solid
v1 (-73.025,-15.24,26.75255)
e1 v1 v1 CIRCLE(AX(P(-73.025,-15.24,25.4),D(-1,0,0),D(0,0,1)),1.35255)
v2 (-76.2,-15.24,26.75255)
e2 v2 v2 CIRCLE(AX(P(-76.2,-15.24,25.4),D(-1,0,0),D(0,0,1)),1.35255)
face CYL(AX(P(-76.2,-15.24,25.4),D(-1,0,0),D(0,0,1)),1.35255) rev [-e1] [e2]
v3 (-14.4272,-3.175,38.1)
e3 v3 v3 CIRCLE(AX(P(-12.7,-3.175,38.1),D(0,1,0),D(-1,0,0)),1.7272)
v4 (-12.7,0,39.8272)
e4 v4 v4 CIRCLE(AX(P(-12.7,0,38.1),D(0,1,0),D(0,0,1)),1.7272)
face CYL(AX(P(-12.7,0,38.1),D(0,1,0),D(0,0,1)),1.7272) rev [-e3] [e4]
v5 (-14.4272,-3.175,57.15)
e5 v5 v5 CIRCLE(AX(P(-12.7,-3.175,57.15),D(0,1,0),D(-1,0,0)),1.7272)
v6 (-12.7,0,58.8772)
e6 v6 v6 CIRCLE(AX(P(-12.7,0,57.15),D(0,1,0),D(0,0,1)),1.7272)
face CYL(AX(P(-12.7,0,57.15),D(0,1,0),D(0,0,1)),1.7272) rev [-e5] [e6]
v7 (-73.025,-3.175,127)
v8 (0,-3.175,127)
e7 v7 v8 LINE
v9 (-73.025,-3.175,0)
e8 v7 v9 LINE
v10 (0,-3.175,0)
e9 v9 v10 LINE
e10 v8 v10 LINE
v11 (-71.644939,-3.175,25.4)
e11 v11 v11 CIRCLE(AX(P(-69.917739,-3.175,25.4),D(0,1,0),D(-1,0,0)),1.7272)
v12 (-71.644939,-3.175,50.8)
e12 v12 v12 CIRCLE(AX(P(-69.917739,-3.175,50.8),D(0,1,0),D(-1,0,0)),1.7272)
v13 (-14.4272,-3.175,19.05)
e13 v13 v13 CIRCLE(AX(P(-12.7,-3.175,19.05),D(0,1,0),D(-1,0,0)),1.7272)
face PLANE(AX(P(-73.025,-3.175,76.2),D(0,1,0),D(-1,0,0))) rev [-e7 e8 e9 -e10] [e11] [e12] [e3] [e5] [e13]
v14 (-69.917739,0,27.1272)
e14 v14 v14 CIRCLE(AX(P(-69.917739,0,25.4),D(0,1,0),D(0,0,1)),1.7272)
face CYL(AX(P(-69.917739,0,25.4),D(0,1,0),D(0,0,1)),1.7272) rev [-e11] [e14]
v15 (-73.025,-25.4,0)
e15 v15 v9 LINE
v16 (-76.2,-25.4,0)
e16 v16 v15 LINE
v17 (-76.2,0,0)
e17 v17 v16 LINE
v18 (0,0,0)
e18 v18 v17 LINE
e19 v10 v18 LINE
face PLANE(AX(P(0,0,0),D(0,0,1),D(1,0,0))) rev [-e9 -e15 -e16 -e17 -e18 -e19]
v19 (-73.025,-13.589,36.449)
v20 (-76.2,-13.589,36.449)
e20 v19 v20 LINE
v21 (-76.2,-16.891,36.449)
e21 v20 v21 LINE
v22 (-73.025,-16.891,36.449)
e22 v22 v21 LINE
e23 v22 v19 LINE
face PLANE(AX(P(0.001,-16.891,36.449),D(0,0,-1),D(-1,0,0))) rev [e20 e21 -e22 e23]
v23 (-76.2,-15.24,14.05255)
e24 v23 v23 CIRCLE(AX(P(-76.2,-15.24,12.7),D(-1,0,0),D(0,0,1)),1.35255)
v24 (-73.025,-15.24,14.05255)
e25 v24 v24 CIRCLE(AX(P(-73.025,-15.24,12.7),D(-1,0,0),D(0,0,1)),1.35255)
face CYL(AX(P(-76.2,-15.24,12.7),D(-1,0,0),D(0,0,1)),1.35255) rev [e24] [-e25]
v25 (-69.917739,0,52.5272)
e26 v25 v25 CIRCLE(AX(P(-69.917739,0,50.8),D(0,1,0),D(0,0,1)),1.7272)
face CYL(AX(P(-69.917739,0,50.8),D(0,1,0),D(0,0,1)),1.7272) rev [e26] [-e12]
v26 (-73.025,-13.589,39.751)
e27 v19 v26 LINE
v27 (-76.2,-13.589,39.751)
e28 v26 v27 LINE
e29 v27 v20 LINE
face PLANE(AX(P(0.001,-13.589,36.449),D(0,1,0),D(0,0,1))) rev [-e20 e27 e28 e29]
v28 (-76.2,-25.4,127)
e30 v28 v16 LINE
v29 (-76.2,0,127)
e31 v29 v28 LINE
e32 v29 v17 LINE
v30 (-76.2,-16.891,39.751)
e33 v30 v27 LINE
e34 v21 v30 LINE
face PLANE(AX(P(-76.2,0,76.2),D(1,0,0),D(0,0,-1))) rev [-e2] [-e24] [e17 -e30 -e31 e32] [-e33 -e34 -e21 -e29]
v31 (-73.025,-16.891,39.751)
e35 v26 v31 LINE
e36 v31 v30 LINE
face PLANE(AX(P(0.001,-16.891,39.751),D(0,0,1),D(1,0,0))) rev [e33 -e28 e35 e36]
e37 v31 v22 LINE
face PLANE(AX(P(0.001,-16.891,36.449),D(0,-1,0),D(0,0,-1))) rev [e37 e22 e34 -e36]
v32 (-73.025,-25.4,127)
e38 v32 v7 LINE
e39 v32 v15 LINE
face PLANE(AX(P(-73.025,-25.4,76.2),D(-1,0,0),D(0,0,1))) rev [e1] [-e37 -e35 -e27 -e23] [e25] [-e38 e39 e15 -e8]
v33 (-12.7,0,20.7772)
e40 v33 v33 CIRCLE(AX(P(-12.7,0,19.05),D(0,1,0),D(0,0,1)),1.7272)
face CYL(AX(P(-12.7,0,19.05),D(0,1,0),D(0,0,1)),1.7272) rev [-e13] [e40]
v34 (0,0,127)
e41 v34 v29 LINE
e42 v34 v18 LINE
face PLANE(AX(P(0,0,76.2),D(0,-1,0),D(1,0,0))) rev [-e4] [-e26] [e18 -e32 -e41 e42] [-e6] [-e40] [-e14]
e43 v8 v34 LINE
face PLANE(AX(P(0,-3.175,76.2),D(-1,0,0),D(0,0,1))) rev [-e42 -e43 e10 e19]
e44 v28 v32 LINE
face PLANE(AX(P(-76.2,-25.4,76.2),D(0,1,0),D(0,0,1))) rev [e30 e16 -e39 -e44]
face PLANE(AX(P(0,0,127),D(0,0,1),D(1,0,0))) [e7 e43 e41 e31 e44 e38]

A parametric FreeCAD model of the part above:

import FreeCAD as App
import Part
import Sketcher
Q = App.Units.Quantity


def add_polygon(sketch, points):
    """Adds a closed chain of lines whose ends are joined by coincident constraints."""
    first, n = sketch.GeometryCount, len(points)
    for a, b in zip(points, points[1:] + points[:1]):
        sketch.addGeometry(Part.LineSegment(App.Vector(*a, 0), App.Vector(*b, 0)), False)
    for i in range(n):
        sketch.addConstraint(Sketcher.Constraint("Coincident", first + i, 2, first + (i + 1) % n, 1))

doc = App.newDocument("Part")
body = doc.addObject("PartDesign::Body", "Body")

sketch1 = doc.addObject("Sketcher::SketchObject", "Sketch")
body.addObject(sketch1)
sketch1.AttachmentSupport = (doc.XY_Plane, [""])
sketch1.MapMode = "FlatFace"
add_polygon(sketch1, [(0, 0), (-76.2, 0), (-76.2, -25.4), (-73, -25.4), (-73, -3.2), (0, -3.2)])
sketch1.addConstraint([
    Sketcher.Constraint("Horizontal", 0),
    Sketcher.Constraint("Vertical", 1),
    Sketcher.Constraint("Horizontal", 2),
    Sketcher.Constraint("Vertical", 3),
    Sketcher.Constraint("Horizontal", 4),
    Sketcher.Constraint("Vertical", 5),
    Sketcher.Constraint("Coincident", 5, 2, -1, 1),
    Sketcher.Constraint("Equal", 2, 5),
    Sketcher.Constraint("DistanceX", 0, 2, 0, 1, Q("3 in")),
    Sketcher.Constraint("DistanceY", 1, 2, 1, 1, Q("1 in")),
    Sketcher.Constraint("DistanceX", 2, 1, 2, 2, Q("0.125 in")),
])
pad1 = doc.addObject("PartDesign::Pad", "Pad")
body.addObject(pad1)
pad1.Profile = sketch1
pad1.Length = Q("3 in")

sketch2 = doc.addObject("Sketcher::SketchObject", "Sketch001")
body.addObject(sketch2)
sketch2.AttachmentSupport = (doc.YZ_Plane, [""])
sketch2.MapMode = "FlatFace"
sketch2.AttachmentOffset = App.Placement(App.Vector(0, 0, -3 * 25.4), App.Rotation())
sketch2.addGeometry([
    Part.Circle(App.Vector(-15.2, 25.4, 0), App.Vector(0, 0, 1), 1.4),
    Part.Circle(App.Vector(-15.2, 12.7, 0), App.Vector(0, 0, 1), 1.4),
], False)
sketch2.addConstraint([
    Sketcher.Constraint("Equal", 0, 1),
    Sketcher.Constraint("Vertical", 0, 3, 1, 3),
    Sketcher.Constraint("DistanceY", -1, 1, 0, 3, Q("1 in")),
    Sketcher.Constraint("Diameter", 0, Q("0.1065 in")),
    Sketcher.Constraint("DistanceX", 0, 3, -1, 1, Q("0.6 in")),
    Sketcher.Constraint("DistanceY", -1, 1, 1, 3, Q("0.5 in")),
])
doc.recompute()
hole = doc.addObject("PartDesign::Hole", "Hole")
body.addObject(hole)
hole.Profile = sketch2
hole.ThreadType = "None"
hole.Diameter = Q("0.1065 in")
hole.DepthType = "ThroughAll"
hole.Reversed = True

sketch3 = doc.addObject("Sketcher::SketchObject", "Sketch002")
body.addObject(sketch3)
sketch3.AttachmentSupport = (doc.XZ_Plane, [""])
sketch3.MapMode = "FlatFace"
sketch3.addGeometry([
    Part.Circle(App.Vector(-69.9, 25.4, 0), App.Vector(0, 0, 1), 1.7),
    Part.Circle(App.Vector(-69.9, 50.8, 0), App.Vector(0, 0, 1), 1.7),
], False)
sketch3.addConstraint([
    Sketcher.Constraint("Equal", 0, 1),
    Sketcher.Constraint("Vertical", 0, 3, 1, 3),
    Sketcher.Constraint("Diameter", 0, Q("0.136 in")),
    Sketcher.Constraint("DistanceY", -1, 1, 0, 3, Q("1 in")),
    Sketcher.Constraint("DistanceY", -1, 1, 1, 3, Q("2 in")),
    Sketcher.Constraint("DistanceX", 0, 3, -1, 1, 69.917739),
])
doc.recompute()
hole2 = doc.addObject("PartDesign::Hole", "Hole001")
body.addObject(hole2)
hole2.Profile = sketch3
hole2.ThreadType = "None"
hole2.Diameter = Q("0.136 in")
hole2.DepthType = "ThroughAll"
hole2.Reversed = True

sketch4 = doc.addObject("Sketcher::SketchObject", "Sketch003")
body.addObject(sketch4)
sketch4.AttachmentSupport = (doc.YZ_Plane, [""])
sketch4.MapMode = "FlatFace"
sketch4.AttachmentOffset = App.Placement(App.Vector(0, 0, -3 * 25.4), App.Rotation())
add_polygon(sketch4, [(-13.6, 36.4), (-16.9, 36.4), (-16.9, 39.8), (-13.6, 39.8)])
sketch4.addConstraint([
    Sketcher.Constraint("Horizontal", 0),
    Sketcher.Constraint("Vertical", 1),
    Sketcher.Constraint("Horizontal", 2),
    Sketcher.Constraint("Vertical", 3),
    Sketcher.Constraint("Equal", 2, 1),
    Sketcher.Constraint("DistanceX", 0, 2, 0, 1, Q("0.13 in")),
    Sketcher.Constraint("DistanceX", 0, 2, -1, 1, Q("0.665 in")),
    Sketcher.Constraint("DistanceY", -1, 1, 0, 2, Q("1.435 in")),
])
pocket1 = doc.addObject("PartDesign::Pocket", "Pocket")
body.addObject(pocket1)
pocket1.Profile = sketch4
pocket1.Type = "UpToFirst"
pocket1.Reversed = True

sketch5 = doc.addObject("Sketcher::SketchObject", "Sketch004")
body.addObject(sketch5)
sketch5.AttachmentSupport = (doc.XZ_Plane, [""])
sketch5.MapMode = "FlatFace"
sketch5.addGeometry([
    Part.Circle(App.Vector(-12.7, 19.1, 0), App.Vector(0, 0, 1), 1.7),
    Part.Circle(App.Vector(-12.7, 38.1, 0), App.Vector(0, 0, 1), 1.7),
    Part.Circle(App.Vector(-12.7, 57.1, 0), App.Vector(0, 0, 1), 1.7),
], False)
sketch5.addConstraint([
    Sketcher.Constraint("Equal", 0, 1),
    Sketcher.Constraint("Equal", 1, 2),
    Sketcher.Constraint("Vertical", 0, 3, 1, 3),
    Sketcher.Constraint("Vertical", 1, 3, 2, 3),
    Sketcher.Constraint("Diameter", 0, Q("0.136 in")),
    Sketcher.Constraint("DistanceX", 0, 3, -1, 1, Q("0.5 in")),
    Sketcher.Constraint("DistanceY", -1, 1, 1, 3, Q("1.5 in")),
    Sketcher.Constraint("DistanceY", 0, 3, 2, 3, Q("1.5 in")),
    Sketcher.Constraint("DistanceY", -1, 1, 0, 3, Q("0.75 in")),
])
doc.recompute()
hole3 = doc.addObject("PartDesign::Hole", "Hole002")
body.addObject(hole3)
hole3.Profile = sketch5
hole3.ThreadType = "None"
hole3.Diameter = Q("0.136 in")
hole3.DepthType = "ThroughAll"
hole3.Reversed = True

sketch6 = doc.addObject("Sketcher::SketchObject", "Sketch005")
body.addObject(sketch6)
sketch6.AttachmentSupport = (doc.XY_Plane, [""])
sketch6.MapMode = "FlatFace"
sketch6.AttachmentOffset = App.Placement(App.Vector(0, 0, 3 * 25.4), App.Rotation())
add_polygon(sketch6, [(-76.2, 0), (-76.2, -25.4), (-73, -25.4), (-73, -3.2), (0, -3.2), (0, 0)])
sketch6.addConstraint([
    Sketcher.Constraint("Vertical", 0),
    Sketcher.Constraint("Horizontal", 1),
    Sketcher.Constraint("Vertical", 2),
    Sketcher.Constraint("Horizontal", 3),
    Sketcher.Constraint("Vertical", 4),
    Sketcher.Constraint("Horizontal", 5),
    Sketcher.Constraint("Coincident", 4, 2, -1, 1),
    Sketcher.Constraint("Equal", 1, 4),
    Sketcher.Constraint("DistanceX", 5, 2, 5, 1, Q("3 in")),
    Sketcher.Constraint("DistanceY", 0, 2, 0, 1, Q("1 in")),
    Sketcher.Constraint("DistanceX", 1, 1, 1, 2, Q("0.125 in")),
])
pad2 = doc.addObject("PartDesign::Pad", "Pad001")
body.addObject(pad2)
pad2.Profile = sketch6
pad2.Length = Q("2 in")

doc.recompute()
